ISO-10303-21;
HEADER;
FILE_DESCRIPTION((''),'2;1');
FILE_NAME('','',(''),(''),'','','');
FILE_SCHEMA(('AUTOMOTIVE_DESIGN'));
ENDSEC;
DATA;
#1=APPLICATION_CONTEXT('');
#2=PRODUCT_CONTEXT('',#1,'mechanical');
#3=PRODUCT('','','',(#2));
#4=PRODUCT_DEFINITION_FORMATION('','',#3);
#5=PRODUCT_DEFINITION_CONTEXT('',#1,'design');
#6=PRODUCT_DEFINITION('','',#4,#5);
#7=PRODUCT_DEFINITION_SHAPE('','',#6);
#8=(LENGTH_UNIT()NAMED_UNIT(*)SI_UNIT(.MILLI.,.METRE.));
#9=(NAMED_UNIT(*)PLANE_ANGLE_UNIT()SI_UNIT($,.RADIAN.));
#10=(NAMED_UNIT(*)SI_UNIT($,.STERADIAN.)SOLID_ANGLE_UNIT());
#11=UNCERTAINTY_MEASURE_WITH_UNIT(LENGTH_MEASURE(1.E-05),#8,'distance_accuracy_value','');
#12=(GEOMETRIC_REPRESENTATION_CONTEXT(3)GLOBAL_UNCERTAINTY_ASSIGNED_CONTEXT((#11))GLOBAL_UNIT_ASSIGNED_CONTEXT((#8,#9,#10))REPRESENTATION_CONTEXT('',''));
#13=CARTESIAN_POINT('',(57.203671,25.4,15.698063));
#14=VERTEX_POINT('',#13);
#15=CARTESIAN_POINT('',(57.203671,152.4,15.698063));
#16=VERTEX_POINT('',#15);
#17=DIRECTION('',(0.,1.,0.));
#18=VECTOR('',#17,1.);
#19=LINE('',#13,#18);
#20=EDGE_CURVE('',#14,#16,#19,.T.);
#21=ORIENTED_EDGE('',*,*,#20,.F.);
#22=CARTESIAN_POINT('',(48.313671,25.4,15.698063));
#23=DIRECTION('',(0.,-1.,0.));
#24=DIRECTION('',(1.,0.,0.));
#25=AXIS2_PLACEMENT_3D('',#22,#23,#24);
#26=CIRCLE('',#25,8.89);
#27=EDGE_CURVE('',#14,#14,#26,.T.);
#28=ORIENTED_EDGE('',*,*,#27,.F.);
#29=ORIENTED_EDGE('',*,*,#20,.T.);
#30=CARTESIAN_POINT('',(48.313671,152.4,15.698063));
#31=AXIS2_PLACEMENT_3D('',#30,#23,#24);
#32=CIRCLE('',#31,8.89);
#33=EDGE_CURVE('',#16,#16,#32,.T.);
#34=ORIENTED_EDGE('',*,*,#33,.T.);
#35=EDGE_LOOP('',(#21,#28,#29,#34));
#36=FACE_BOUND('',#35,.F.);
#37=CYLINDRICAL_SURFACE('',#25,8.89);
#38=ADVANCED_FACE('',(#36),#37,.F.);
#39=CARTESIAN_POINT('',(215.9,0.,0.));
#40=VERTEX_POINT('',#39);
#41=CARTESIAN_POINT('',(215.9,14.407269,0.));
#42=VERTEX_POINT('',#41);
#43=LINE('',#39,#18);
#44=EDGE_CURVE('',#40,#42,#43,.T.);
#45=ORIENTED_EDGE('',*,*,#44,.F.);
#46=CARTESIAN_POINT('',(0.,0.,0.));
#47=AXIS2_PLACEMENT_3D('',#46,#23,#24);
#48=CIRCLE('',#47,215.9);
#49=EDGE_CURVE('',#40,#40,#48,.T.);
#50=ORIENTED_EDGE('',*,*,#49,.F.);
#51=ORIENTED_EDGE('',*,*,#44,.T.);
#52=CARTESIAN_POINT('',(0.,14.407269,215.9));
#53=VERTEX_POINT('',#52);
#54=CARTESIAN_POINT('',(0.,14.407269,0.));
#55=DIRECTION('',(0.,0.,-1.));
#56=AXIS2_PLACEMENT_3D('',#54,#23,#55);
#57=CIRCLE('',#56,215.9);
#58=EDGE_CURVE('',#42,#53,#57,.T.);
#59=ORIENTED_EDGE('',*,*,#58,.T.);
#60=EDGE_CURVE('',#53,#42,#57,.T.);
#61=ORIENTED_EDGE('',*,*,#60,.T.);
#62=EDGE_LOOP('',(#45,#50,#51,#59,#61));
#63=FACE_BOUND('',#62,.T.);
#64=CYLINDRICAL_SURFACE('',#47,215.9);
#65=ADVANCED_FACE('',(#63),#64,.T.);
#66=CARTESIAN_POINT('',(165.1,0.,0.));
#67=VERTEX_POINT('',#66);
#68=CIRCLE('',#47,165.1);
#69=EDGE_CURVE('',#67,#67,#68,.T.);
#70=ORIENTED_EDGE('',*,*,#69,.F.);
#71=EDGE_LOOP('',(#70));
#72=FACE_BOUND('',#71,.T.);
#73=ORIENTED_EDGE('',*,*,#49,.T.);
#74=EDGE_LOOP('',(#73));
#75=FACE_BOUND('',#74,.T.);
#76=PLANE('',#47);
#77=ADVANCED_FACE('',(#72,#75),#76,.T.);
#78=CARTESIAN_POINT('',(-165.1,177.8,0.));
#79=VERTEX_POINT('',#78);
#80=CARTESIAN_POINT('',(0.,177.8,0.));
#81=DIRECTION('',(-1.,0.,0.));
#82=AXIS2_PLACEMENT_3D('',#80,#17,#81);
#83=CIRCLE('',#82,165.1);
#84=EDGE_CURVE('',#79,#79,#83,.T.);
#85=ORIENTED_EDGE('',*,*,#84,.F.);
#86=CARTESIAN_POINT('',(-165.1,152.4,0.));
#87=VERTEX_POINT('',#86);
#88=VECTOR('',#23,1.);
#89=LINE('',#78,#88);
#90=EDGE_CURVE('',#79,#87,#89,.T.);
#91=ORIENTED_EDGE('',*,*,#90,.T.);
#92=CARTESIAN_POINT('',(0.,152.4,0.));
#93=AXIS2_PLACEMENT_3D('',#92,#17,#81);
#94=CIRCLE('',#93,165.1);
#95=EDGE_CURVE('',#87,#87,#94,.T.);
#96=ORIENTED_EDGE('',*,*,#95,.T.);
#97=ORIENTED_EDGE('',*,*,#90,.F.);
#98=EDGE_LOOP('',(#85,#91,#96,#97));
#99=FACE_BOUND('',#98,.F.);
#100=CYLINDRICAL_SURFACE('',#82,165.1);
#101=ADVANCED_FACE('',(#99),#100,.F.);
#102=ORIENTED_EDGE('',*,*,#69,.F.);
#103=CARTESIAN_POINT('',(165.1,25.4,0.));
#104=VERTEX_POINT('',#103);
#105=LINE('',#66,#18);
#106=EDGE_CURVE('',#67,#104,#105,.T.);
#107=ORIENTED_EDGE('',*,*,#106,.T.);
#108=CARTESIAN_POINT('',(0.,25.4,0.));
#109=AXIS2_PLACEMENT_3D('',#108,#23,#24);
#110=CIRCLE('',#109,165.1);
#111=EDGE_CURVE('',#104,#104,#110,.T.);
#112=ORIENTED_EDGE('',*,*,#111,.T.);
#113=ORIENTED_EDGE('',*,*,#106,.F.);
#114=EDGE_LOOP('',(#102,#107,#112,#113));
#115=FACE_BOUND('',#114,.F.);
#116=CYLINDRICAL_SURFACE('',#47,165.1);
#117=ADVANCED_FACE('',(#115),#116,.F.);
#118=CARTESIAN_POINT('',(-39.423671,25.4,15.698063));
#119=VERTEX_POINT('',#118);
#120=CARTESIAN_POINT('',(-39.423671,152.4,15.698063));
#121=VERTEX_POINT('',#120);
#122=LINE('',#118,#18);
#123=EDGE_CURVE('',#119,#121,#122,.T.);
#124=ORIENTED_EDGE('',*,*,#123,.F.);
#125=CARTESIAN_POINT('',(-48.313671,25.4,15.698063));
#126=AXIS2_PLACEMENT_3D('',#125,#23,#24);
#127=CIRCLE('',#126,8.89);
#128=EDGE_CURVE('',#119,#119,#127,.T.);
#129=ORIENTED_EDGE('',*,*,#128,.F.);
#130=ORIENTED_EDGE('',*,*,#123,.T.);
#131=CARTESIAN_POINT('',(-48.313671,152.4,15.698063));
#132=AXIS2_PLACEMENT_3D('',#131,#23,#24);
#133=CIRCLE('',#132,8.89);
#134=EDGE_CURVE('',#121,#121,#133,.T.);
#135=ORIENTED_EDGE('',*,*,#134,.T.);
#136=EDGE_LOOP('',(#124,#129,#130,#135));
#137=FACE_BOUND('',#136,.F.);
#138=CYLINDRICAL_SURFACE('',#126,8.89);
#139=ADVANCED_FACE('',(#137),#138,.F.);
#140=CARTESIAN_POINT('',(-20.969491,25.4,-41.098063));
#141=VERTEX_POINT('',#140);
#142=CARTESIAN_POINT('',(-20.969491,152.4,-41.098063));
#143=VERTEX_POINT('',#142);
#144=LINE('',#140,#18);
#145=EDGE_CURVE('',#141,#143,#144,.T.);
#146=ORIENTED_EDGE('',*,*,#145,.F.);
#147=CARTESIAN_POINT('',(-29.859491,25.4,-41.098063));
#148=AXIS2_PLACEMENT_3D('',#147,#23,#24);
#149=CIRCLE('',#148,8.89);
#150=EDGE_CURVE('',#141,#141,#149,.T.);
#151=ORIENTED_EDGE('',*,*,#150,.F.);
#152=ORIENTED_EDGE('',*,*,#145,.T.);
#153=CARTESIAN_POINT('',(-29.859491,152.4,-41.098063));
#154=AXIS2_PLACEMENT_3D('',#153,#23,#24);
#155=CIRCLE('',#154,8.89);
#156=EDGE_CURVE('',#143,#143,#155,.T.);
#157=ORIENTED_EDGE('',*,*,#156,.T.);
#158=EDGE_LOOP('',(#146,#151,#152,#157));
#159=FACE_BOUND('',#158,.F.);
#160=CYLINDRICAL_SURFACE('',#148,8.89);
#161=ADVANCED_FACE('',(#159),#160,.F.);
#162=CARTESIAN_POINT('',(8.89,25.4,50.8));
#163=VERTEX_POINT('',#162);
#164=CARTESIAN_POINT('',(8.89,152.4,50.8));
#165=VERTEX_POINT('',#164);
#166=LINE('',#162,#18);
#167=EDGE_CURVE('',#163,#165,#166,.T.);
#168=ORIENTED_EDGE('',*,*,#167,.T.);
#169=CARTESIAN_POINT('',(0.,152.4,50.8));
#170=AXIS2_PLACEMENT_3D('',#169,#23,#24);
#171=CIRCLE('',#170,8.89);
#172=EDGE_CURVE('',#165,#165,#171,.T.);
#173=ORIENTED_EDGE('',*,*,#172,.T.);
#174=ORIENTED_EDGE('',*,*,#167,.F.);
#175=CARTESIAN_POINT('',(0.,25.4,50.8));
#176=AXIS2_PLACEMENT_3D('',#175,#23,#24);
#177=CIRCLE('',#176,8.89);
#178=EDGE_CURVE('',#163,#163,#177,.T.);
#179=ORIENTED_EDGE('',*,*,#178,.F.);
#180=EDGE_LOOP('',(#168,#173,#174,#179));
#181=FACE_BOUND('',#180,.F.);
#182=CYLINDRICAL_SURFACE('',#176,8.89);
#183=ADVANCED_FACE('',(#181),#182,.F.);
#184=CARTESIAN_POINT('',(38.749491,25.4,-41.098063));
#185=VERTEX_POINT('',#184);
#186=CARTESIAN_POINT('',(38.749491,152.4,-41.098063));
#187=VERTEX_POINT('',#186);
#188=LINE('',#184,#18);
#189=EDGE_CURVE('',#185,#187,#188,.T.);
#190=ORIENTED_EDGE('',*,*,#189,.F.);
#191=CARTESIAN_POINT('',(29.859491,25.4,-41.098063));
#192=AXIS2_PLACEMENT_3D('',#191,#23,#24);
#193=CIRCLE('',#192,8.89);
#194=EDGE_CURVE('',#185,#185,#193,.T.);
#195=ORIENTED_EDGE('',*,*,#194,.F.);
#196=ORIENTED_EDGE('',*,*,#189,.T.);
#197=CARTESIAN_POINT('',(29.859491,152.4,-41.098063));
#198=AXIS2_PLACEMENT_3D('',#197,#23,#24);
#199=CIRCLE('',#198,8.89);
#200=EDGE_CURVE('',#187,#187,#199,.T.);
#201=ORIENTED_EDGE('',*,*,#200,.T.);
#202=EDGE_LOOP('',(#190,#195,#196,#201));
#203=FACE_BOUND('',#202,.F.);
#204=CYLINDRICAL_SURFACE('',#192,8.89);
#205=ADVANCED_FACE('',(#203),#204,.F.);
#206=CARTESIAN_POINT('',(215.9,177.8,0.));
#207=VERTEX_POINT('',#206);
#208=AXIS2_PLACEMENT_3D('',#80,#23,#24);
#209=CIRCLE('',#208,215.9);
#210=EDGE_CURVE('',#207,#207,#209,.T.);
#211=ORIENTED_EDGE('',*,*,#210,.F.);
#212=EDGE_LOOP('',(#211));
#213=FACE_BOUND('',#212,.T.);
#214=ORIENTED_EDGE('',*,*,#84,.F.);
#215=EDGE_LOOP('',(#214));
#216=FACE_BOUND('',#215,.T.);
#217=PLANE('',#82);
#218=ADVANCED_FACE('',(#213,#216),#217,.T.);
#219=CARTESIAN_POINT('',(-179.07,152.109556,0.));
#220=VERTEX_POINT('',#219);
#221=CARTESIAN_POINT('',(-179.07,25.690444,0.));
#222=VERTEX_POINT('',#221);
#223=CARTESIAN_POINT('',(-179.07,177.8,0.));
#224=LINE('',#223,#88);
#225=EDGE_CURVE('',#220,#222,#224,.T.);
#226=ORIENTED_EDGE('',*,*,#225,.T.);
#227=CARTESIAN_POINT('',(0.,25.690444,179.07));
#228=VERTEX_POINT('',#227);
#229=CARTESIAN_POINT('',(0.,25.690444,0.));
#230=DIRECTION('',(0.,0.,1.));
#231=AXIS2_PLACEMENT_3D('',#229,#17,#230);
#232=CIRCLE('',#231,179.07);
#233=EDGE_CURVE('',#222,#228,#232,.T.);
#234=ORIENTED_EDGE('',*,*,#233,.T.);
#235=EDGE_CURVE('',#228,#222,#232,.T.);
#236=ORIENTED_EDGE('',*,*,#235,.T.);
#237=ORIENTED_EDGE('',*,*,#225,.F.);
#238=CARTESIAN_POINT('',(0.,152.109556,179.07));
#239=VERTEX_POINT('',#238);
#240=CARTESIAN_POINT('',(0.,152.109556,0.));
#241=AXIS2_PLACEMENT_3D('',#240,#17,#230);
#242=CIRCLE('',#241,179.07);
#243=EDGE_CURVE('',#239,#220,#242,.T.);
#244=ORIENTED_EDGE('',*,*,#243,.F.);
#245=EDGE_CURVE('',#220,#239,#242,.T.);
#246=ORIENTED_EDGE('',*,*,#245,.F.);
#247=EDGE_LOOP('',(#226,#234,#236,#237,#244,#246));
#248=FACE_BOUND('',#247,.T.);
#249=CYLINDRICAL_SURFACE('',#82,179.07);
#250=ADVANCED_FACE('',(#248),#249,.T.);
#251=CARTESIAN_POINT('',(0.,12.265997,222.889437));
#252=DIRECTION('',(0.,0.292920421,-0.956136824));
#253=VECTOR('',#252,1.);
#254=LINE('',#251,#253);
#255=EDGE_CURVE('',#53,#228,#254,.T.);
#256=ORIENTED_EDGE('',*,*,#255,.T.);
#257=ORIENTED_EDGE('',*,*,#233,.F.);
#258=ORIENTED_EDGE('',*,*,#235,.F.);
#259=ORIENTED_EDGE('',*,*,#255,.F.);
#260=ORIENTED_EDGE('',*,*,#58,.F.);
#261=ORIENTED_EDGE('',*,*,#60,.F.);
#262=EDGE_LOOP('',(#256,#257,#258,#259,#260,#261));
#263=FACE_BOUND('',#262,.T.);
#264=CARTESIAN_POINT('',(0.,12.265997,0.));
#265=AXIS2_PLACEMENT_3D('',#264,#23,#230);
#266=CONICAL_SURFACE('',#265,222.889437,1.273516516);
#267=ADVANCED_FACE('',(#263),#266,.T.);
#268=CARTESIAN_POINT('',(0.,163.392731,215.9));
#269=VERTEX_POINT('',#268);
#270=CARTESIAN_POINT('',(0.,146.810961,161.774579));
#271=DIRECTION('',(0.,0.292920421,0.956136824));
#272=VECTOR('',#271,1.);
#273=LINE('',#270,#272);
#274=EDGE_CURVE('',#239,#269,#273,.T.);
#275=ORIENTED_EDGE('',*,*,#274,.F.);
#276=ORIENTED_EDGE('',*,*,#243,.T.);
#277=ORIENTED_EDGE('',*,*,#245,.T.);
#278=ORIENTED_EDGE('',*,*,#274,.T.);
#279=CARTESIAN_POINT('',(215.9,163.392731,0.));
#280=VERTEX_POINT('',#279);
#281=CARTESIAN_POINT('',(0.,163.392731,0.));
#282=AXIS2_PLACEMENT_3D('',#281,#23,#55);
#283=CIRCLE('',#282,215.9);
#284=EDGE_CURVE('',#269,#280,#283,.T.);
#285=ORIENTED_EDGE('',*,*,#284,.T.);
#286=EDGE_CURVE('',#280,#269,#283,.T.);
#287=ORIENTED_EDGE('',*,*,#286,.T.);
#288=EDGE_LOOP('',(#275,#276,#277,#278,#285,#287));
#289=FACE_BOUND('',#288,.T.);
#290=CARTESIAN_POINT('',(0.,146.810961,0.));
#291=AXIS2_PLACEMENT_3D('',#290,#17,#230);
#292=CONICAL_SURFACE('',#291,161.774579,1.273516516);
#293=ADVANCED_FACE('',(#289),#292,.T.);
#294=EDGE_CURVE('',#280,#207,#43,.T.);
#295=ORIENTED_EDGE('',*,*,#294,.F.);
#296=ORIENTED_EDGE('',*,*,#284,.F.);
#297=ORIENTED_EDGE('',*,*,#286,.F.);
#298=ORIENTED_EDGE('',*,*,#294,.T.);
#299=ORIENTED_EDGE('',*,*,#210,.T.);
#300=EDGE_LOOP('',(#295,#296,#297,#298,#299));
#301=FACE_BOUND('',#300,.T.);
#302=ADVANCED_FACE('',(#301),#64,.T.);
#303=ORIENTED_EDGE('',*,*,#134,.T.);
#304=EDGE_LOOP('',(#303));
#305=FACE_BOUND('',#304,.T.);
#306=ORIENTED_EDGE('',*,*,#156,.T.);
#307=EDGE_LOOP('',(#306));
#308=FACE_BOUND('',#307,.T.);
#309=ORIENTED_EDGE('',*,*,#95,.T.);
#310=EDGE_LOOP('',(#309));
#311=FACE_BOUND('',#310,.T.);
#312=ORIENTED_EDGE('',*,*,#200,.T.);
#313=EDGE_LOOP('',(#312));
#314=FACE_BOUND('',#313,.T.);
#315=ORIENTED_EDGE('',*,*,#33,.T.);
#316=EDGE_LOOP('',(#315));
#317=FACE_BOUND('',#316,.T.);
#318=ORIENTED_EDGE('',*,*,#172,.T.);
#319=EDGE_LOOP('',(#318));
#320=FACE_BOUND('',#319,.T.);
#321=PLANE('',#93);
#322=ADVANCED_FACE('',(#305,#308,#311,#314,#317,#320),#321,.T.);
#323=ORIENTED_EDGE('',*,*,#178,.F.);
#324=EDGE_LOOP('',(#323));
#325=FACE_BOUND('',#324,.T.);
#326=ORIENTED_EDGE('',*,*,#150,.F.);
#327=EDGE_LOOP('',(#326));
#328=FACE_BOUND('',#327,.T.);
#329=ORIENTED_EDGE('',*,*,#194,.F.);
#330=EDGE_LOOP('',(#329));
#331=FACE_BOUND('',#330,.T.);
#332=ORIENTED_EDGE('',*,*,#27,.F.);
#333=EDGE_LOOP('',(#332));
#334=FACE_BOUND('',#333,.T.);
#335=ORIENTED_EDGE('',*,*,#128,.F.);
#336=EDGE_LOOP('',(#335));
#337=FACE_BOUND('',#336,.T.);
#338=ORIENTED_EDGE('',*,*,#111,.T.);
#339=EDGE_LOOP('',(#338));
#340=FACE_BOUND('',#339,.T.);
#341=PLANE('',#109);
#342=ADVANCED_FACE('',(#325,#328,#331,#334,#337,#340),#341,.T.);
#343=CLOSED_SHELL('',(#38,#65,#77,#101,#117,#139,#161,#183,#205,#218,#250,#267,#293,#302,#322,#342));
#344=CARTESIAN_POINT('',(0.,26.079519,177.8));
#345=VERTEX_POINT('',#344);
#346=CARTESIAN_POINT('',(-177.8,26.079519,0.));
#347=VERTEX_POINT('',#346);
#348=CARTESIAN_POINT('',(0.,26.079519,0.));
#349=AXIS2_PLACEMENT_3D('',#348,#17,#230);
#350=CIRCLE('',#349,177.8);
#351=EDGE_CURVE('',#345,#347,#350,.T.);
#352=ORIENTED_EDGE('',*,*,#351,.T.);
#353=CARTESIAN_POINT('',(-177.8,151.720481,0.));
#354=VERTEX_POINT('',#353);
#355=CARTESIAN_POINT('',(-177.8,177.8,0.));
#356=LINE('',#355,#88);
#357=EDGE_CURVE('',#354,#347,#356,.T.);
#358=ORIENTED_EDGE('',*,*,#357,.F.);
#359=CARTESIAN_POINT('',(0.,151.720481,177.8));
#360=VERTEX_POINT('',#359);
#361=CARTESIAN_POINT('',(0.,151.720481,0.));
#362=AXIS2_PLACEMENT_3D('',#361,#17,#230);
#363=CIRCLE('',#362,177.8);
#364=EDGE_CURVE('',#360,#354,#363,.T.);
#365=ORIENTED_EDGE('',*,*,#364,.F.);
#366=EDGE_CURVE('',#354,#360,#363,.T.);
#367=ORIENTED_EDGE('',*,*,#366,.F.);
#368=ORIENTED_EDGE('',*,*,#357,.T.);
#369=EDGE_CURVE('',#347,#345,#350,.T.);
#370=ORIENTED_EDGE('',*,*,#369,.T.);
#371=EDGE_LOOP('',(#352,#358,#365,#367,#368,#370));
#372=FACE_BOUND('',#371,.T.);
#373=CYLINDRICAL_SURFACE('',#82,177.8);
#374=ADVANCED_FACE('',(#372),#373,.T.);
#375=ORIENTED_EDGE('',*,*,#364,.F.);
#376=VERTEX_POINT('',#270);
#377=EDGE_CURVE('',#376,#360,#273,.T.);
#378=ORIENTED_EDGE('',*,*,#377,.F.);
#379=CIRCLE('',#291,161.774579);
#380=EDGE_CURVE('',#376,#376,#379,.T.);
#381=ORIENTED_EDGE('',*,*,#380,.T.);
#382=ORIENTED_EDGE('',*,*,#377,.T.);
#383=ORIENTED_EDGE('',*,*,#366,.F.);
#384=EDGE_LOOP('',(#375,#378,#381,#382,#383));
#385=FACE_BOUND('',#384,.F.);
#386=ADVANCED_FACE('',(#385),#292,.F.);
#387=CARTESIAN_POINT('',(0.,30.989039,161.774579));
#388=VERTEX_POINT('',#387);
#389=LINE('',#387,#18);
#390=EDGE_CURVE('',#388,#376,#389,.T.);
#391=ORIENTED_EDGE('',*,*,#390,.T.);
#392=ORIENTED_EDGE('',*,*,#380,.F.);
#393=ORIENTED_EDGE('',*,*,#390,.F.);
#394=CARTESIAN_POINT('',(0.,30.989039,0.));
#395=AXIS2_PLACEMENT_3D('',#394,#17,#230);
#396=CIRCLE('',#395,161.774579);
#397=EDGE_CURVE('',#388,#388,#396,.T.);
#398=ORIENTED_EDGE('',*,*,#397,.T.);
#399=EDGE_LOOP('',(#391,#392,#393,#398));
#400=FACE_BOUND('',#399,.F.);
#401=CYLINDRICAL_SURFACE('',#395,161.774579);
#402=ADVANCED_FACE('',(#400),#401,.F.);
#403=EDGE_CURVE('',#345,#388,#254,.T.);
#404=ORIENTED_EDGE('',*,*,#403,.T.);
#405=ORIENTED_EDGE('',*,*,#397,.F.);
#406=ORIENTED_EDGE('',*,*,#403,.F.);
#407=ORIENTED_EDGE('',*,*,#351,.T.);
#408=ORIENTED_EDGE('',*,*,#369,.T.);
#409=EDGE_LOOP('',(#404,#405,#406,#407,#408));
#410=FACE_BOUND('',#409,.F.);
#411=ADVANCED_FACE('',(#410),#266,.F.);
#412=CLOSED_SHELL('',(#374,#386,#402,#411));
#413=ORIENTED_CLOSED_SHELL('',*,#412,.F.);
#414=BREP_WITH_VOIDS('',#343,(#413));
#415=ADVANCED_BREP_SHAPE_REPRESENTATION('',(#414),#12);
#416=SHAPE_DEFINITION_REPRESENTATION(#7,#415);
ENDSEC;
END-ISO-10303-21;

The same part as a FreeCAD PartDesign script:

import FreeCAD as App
import Part
import Sketcher

V = App.Vector
Q = App.Units.Quantity

doc = App.newDocument("Part")
body = doc.addObject("PartDesign::Body", "Body")

# Sketch on XZ plane
sketch1 = body.newObject("Sketcher::SketchObject", "Sketch")
sketch1.AttachmentSupport = (doc.getObject("XZ_Plane"), [""])
sketch1.MapMode = "FlatFace"
sketch1.addGeometry(Part.Circle(V(0, 0, 0), V(0, 0, 1), 216), False)
sketch1.addConstraint(Sketcher.Constraint("Coincident", 0, 3, -1, 1))
sketch1.addConstraint(Sketcher.Constraint("Diameter", 0, Q("17 in")))
pad1 = body.newObject("PartDesign::Pad", "Pad")
pad1.Profile = sketch1
pad1.Length = Q("7 in")
pad1.Reversed = True

# Sketch on YZ plane
sketch2 = body.newObject("Sketcher::SketchObject", "Sketch001")
sketch2.AttachmentSupport = (doc.getObject("YZ_Plane"), [""])
sketch2.MapMode = "FlatFace"
sketch2.addGeometry(Part.LineSegment(V(166, 223, 0), V(12, 223, 0)), False)
sketch2.addGeometry(Part.LineSegment(V(12, 223, 0), V(31, 162, 0)), False)
sketch2.addGeometry(Part.LineSegment(V(31, 162, 0), V(147, 162, 0)), False)
sketch2.addGeometry(Part.LineSegment(V(147, 162, 0), V(166, 223, 0)), False)
sketch2.addConstraint(Sketcher.Constraint("Coincident", 0, 2, 1, 1))
sketch2.addConstraint(Sketcher.Constraint("Coincident", 1, 2, 2, 1))
sketch2.addConstraint(Sketcher.Constraint("Coincident", 2, 2, 3, 1))
sketch2.addConstraint(Sketcher.Constraint("Coincident", 3, 2, 0, 1))
sketch2.addConstraint(Sketcher.Constraint("Horizontal", 0))
sketch2.addConstraint(Sketcher.Constraint("Horizontal", 2))
sketch2.addConstraint(Sketcher.Constraint("Equal", 1, 3))
sketch2.addConstraint(Sketcher.Constraint("DistanceX", 2, 1, 2, 2, 115.821922))
sketch2.addConstraint(Sketcher.Constraint("DistanceX", 0, 2, 0, 1, 153.268006))
sketch2.addConstraint(Sketcher.Constraint("DistanceX", -1, 1, 1, 2, 30.989039))
sketch2.addConstraint(Sketcher.Constraint("DistanceY", -1, 1, 1, 2, 161.774579))
sketch2.addConstraint(Sketcher.Constraint("Distance", 1, 63.918528))
groove = body.newObject("PartDesign::Groove", "Groove")
groove.Profile = sketch2
groove.ReferenceAxis = (sketch2, ["H_Axis"])
groove.Angle = 360

# Sketch on XZ plane
sketch3 = body.newObject("Sketcher::SketchObject", "Sketch002")
sketch3.AttachmentSupport = (doc.getObject("XZ_Plane"), [""])
sketch3.MapMode = "FlatFace"
sketch3.addGeometry(Part.Circle(V(0, 0, 0), V(0, 0, 1), 165), False)
sketch3.addConstraint(Sketcher.Constraint("Coincident", 0, 3, -1, 1))
sketch3.addConstraint(Sketcher.Constraint("Diameter", 0, Q("13 in")))
pocket1 = body.newObject("PartDesign::Pocket", "Pocket")
pocket1.Profile = sketch3
pocket1.Length = Q("1 in")

# Sketch on XZ plane
sketch4 = body.newObject("Sketcher::SketchObject", "Sketch003")
sketch4.AttachmentSupport = (doc.getObject("XZ_Plane"), [""])
sketch4.MapMode = "FlatFace"
sketch4.AttachmentOffset = App.Placement(V(0, 0, -7 * 25.4), App.Rotation())
sketch4.addGeometry(Part.Circle(V(0, 0, 0), V(0, 0, 1), 165), False)
sketch4.addConstraint(Sketcher.Constraint("Coincident", 0, 3, -1, 1))
sketch4.addConstraint(Sketcher.Constraint("Diameter", 0, Q("13 in")))
pocket2 = body.newObject("PartDesign::Pocket", "Pocket001")
pocket2.Profile = sketch4
pocket2.Length = Q("1 in")
pocket2.Reversed = True

# Sketch on XZ plane
sketch5 = body.newObject("Sketcher::SketchObject", "Sketch004")
sketch5.AttachmentSupport = (doc.getObject("XZ_Plane"), [""])
sketch5.MapMode = "FlatFace"
sketch5.AttachmentOffset = App.Placement(V(0, 0, -1 * 25.4), App.Rotation())
sketch5.addGeometry(Part.Circle(V(0, 51, 0), V(0, 0, 1), 9), False)
sketch5.addGeometry(Part.Circle(V(-48, 16, 0), V(0, 0, 1), 9), False)
sketch5.addGeometry(Part.Circle(V(-30, -41, 0), V(0, 0, 1), 9), False)
sketch5.addGeometry(Part.Circle(V(30, -41, 0), V(0, 0, 1), 9), False)
sketch5.addGeometry(Part.Circle(V(48, 16, 0), V(0, 0, 1), 9), False)
sketch5.addConstraint(Sketcher.Constraint("Equal", 0, 1))
sketch5.addConstraint(Sketcher.Constraint("Equal", 1, 2))
sketch5.addConstraint(Sketcher.Constraint("Equal", 2, 3))
sketch5.addConstraint(Sketcher.Constraint("Equal", 3, 4))
sketch5.addConstraint(Sketcher.Constraint("Symmetric", 2, 3, 3, 3, -2))
sketch5.addConstraint(Sketcher.Constraint("Symmetric", 1, 3, 4, 3, -2))
sketch5.addConstraint(Sketcher.Constraint("PointOnObject", 0, 3, -2))
sketch5.addConstraint(Sketcher.Constraint("Diameter", 0, Q("0.7 in")))
sketch5.addConstraint(Sketcher.Constraint("DistanceY", -1, 1, 0, 3, Q("2 in")))
sketch5.addConstraint(Sketcher.Constraint("DistanceX", 1, 3, -1, 1, 48.313671))
sketch5.addConstraint(Sketcher.Constraint("DistanceX", 2, 3, -1, 1, 29.859491))
sketch5.addConstraint(Sketcher.Constraint("DistanceY", -1, 1, 1, 3, 15.698063))
sketch5.addConstraint(Sketcher.Constraint("DistanceY", 2, 3, -1, 1, 41.098063))
pocket3 = body.newObject("PartDesign::Pocket", "Pocket002")
pocket3.Profile = sketch5
pocket3.Type = "ThroughAll"

# Sketch on XZ plane
sketch6 = body.newObject("Sketcher::SketchObject", "Sketch005")
sketch6.AttachmentSupport = (doc.getObject("XZ_Plane"), [""])
sketch6.MapMode = "FlatFace"
sketch6.AttachmentOffset = App.Placement(V(0, 0, -7 * 25.4), App.Rotation())
sketch6.addGeometry(Part.Circle(V(0, 0, 0), V(0, 0, 1), 179), False)
sketch6.addGeometry(Part.Circle(V(0, 0, 0), V(0, 0, 1), 178), False)
sketch6.addConstraint(Sketcher.Constraint("Coincident", 0, 3, -1, 1))
sketch6.addConstraint(Sketcher.Constraint("Coincident", 1, 3, -1, 1))
sketch6.addConstraint(Sketcher.Constraint("Diameter", 1, Q("14 in")))
sketch6.addConstraint(Sketcher.Constraint("Diameter", 0, Q("14.1 in")))
pad2 = body.newObject("PartDesign::Pad", "Pad001")
pad2.Profile = sketch6
pad2.Length = Q("6.25 in")

doc.recompute()
